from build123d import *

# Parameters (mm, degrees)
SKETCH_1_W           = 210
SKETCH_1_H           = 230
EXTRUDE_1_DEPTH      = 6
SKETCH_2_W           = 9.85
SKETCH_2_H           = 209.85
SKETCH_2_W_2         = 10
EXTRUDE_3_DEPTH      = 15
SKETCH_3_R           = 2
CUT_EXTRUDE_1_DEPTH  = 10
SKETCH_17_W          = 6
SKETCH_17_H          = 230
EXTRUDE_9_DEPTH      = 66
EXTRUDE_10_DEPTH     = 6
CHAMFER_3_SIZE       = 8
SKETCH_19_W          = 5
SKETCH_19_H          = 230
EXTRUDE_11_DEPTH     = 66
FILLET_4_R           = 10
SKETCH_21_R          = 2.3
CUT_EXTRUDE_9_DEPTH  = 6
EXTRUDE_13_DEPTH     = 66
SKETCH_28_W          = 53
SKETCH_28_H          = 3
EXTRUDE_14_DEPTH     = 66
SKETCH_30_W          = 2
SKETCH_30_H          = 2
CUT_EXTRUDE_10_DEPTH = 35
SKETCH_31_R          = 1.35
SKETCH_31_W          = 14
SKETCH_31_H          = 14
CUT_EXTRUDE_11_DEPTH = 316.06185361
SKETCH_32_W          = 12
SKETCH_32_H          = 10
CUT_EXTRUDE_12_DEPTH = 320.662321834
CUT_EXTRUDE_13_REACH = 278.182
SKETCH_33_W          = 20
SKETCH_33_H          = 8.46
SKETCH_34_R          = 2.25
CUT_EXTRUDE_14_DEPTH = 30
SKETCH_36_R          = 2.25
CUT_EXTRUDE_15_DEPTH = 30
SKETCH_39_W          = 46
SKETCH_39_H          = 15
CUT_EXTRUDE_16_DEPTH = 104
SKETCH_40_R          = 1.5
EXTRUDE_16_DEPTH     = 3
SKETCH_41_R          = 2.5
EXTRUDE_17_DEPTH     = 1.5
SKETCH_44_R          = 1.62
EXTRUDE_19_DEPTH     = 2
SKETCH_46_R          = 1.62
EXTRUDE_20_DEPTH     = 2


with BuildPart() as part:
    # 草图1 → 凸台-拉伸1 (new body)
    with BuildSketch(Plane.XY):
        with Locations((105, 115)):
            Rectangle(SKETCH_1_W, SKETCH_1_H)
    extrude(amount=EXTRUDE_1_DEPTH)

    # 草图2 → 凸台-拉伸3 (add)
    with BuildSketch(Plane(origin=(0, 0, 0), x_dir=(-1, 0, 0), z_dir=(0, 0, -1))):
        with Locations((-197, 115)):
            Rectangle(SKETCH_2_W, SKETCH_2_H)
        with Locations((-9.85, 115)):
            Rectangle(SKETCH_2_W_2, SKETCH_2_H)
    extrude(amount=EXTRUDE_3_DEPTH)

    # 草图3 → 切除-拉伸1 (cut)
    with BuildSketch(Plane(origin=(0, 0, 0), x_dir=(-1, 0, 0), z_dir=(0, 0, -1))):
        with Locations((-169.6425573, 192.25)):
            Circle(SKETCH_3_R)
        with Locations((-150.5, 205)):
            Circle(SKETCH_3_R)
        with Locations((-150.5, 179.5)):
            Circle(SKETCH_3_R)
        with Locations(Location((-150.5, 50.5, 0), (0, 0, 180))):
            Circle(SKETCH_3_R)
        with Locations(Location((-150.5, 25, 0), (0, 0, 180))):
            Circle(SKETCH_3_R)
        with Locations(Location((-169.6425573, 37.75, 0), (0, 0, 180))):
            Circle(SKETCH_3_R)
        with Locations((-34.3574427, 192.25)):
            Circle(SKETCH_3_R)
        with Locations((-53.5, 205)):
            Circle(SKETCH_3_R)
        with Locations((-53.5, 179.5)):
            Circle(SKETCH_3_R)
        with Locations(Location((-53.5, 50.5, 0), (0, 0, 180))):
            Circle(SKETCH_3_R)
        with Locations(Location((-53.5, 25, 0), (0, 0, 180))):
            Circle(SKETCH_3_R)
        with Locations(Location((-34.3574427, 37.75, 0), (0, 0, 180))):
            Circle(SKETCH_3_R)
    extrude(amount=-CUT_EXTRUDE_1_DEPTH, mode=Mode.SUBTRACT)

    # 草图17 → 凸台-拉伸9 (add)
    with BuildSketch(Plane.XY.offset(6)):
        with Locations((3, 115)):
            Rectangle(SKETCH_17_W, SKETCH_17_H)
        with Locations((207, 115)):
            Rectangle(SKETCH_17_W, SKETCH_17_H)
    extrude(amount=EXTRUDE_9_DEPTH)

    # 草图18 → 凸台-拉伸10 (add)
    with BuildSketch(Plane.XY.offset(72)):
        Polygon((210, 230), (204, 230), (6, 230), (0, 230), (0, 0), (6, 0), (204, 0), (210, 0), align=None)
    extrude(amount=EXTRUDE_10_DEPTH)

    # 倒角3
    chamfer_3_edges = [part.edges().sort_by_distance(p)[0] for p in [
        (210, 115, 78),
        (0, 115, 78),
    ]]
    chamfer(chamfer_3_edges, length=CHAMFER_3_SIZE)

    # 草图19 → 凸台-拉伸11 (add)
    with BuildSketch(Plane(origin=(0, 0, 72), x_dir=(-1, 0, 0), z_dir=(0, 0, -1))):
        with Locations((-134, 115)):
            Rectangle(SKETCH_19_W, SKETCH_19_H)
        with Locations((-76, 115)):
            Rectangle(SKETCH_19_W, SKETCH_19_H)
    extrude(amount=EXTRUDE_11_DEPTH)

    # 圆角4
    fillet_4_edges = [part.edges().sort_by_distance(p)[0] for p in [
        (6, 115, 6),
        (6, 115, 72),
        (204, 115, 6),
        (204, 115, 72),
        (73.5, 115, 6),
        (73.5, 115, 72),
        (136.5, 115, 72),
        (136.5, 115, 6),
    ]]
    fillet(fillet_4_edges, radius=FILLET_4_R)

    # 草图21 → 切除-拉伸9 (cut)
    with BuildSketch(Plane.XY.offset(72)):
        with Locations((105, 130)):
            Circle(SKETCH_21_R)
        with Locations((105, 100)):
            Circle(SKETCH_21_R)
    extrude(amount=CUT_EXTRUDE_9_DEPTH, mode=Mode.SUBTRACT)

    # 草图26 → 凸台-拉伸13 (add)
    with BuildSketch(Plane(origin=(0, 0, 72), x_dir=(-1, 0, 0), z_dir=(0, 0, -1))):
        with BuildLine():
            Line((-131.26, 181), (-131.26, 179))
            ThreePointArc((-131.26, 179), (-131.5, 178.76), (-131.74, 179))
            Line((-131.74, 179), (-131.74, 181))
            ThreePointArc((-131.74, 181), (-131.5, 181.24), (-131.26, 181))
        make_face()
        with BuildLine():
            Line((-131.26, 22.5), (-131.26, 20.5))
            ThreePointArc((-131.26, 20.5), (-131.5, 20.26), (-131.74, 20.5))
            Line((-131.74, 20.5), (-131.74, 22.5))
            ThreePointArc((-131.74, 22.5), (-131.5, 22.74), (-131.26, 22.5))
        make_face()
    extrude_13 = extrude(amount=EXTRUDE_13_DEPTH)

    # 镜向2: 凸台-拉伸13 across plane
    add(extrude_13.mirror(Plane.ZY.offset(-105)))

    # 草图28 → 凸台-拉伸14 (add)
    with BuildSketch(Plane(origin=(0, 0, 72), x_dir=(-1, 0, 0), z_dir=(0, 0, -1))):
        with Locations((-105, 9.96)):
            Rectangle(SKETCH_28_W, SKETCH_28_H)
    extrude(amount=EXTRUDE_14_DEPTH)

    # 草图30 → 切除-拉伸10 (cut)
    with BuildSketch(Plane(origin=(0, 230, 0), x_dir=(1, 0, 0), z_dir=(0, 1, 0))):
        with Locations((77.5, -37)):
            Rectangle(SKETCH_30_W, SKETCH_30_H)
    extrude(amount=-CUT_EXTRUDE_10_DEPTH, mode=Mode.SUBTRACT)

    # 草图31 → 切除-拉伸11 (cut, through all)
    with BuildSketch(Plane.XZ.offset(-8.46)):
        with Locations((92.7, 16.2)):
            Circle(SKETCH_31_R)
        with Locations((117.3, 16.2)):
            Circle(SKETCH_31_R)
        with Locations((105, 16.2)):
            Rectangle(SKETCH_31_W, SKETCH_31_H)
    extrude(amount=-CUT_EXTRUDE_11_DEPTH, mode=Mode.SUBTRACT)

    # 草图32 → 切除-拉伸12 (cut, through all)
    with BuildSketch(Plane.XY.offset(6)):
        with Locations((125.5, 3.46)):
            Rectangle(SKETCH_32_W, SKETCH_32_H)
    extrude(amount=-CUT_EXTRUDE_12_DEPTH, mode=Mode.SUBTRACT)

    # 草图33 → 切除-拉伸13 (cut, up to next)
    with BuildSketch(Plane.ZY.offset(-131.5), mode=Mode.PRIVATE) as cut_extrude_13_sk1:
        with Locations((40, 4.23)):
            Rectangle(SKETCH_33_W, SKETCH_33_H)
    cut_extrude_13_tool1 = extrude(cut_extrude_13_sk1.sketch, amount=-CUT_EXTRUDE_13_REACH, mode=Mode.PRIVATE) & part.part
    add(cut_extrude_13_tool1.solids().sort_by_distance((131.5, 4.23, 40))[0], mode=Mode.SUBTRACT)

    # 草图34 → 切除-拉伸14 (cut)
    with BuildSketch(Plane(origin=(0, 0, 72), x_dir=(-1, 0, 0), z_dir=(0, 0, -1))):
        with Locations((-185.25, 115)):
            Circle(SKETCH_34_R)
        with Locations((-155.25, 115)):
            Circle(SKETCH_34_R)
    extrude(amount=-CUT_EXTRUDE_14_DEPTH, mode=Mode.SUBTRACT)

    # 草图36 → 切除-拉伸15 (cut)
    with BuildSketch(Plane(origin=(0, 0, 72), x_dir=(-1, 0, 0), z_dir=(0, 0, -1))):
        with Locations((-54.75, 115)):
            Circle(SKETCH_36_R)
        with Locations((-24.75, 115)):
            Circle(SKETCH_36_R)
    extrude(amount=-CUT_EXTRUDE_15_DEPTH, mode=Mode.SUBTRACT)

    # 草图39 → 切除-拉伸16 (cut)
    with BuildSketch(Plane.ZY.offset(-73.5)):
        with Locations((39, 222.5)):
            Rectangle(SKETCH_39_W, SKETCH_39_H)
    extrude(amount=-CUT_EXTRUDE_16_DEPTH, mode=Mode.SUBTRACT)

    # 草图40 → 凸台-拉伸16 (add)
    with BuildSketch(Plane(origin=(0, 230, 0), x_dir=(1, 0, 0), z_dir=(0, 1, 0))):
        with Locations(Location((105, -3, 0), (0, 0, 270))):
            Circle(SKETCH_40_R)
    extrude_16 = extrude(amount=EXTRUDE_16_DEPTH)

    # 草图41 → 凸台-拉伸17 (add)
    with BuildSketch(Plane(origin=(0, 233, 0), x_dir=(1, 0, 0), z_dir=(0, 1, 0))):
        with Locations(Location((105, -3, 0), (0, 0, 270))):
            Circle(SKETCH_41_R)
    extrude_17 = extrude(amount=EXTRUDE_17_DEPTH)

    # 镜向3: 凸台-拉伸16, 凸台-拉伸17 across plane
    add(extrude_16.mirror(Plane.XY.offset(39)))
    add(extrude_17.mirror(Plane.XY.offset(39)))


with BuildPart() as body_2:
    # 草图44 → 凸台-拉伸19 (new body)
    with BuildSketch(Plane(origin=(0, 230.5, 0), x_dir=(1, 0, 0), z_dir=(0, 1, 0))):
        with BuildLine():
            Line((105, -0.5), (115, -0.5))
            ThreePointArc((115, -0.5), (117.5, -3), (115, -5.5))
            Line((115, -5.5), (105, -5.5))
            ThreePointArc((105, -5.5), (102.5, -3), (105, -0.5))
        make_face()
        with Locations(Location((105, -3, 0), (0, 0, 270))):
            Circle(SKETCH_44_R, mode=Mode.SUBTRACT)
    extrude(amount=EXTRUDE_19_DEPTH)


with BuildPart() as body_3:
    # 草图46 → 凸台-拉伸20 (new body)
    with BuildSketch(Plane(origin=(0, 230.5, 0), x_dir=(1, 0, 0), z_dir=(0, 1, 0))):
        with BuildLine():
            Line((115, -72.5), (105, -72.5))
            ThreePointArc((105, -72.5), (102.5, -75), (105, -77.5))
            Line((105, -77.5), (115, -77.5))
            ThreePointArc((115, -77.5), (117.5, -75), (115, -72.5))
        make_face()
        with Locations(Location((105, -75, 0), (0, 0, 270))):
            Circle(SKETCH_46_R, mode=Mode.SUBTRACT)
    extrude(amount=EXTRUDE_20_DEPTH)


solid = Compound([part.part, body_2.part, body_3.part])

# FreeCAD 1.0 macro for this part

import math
import FreeCAD as App
import Part
import Sketcher
from FreeCAD import Vector


def edges_at(feature, points):
    """Names of the edges that pass closest to the given points."""
    edges = feature.Shape.Edges
    near = lambda p: min(range(len(edges)), key=lambda i: edges[i].distToShape(Part.Vertex(*p))[0])
    return sorted({f"Edge{near(p) + 1}" for p in points})

doc = App.newDocument("Part")
body = doc.addObject("PartDesign::Body", "Body")

# Sketch on XY plane
sketch1 = body.newObject("Sketcher::SketchObject", "Sketch")
sketch1.AttachmentSupport = (doc.getObject("XY_Plane"), [""])
sketch1.MapMode = "FlatFace"
sketch1.addGeometry([
    Part.LineSegment(Vector(0, 230, 0), Vector(0, 0, 0)),
    Part.LineSegment(Vector(0, 0, 0), Vector(210, 0, 0)),
    Part.LineSegment(Vector(210, 0, 0), Vector(210, 230, 0)),
    Part.LineSegment(Vector(210, 230, 0), Vector(0, 230, 0)),
], False)
sketch1.addConstraint([
    Sketcher.Constraint("Coincident", 0, 2, 1, 1),
    Sketcher.Constraint("Coincident", 1, 2, 2, 1),
    Sketcher.Constraint("Coincident", 2, 2, 3, 1),
    Sketcher.Constraint("Coincident", 3, 2, 0, 1),
    Sketcher.Constraint("Vertical", 0),
    Sketcher.Constraint("Horizontal", 1),
    Sketcher.Constraint("Vertical", 2),
    Sketcher.Constraint("Horizontal", 3),
    Sketcher.Constraint("Coincident", 0, 2, -1, 1),
    Sketcher.Constraint("DistanceX", 1, 1, 1, 2, 210.0),
    Sketcher.Constraint("DistanceY", 0, 2, 0, 1, 230.0),
])
pad1 = body.newObject("PartDesign::Pad", "Pad")
pad1.Profile = sketch1
pad1.Length = 6

# Sketch on XY plane
sketch2 = body.newObject("Sketcher::SketchObject", "Sketch001")
sketch2.AttachmentSupport = (doc.getObject("XY_Plane"), [""])
sketch2.MapMode = "FlatFace"
sketch2.addGeometry([
    Part.LineSegment(Vector(201.925, 219.925, 0), Vector(201.925, 10.075, 0)),  # 0
    Part.LineSegment(Vector(201.925, 10.075, 0), Vector(192.075, 10.075, 0)),  # 1
    Part.LineSegment(Vector(192.075, 10.075, 0), Vector(192.075, 219.925, 0)),  # 2
    Part.LineSegment(Vector(192.075, 219.925, 0), Vector(201.925, 219.925, 0)),  # 3
    Part.LineSegment(Vector(14.85, 219.925, 0), Vector(14.85, 10.075, 0)),  # 4
    Part.LineSegment(Vector(14.85, 10.075, 0), Vector(4.85, 10.075, 0)),  # 5
    Part.LineSegment(Vector(4.85, 10.075, 0), Vector(4.85, 219.925, 0)),  # 6
    Part.LineSegment(Vector(4.85, 219.925, 0), Vector(14.85, 219.925, 0)),  # 7
], False)
sketch2.addConstraint([
    Sketcher.Constraint("Coincident", 0, 2, 1, 1),
    Sketcher.Constraint("Coincident", 1, 2, 2, 1),
    Sketcher.Constraint("Coincident", 2, 2, 3, 1),
    Sketcher.Constraint("Coincident", 3, 2, 0, 1),
    Sketcher.Constraint("Coincident", 4, 2, 5, 1),
    Sketcher.Constraint("Coincident", 5, 2, 6, 1),
    Sketcher.Constraint("Coincident", 6, 2, 7, 1),
    Sketcher.Constraint("Coincident", 7, 2, 4, 1),
    Sketcher.Constraint("Vertical", 0),
    Sketcher.Constraint("Horizontal", 1),
    Sketcher.Constraint("Vertical", 2),
    Sketcher.Constraint("Horizontal", 3),
    Sketcher.Constraint("Vertical", 4),
    Sketcher.Constraint("Horizontal", 5),
    Sketcher.Constraint("Vertical", 6),
    Sketcher.Constraint("Horizontal", 7),
    Sketcher.Constraint("Horizontal", 1, 2, 4, 2),
    Sketcher.Constraint("Horizontal", 3, 2, 6, 2),
    Sketcher.Constraint("DistanceX", 5, 2, 5, 1, 10.0),
    Sketcher.Constraint("DistanceX", 1, 2, 1, 1, 9.85),
    Sketcher.Constraint("DistanceY", 0, 2, 0, 1, 209.85),
    Sketcher.Constraint("DistanceX", -1, 1, 4, 2, 14.85),
    Sketcher.Constraint("DistanceX", -1, 1, 0, 2, 201.925),
    Sketcher.Constraint("DistanceY", -1, 1, 0, 2, 10.075),
])
pad2 = body.newObject("PartDesign::Pad", "Pad001")
pad2.Profile = sketch2
pad2.Length = 15
pad2.Reversed = True

# Sketch on XY plane
sketch3 = body.newObject("Sketcher::SketchObject", "Sketch002")
sketch3.AttachmentSupport = (doc.getObject("XY_Plane"), [""])
sketch3.MapMode = "FlatFace"
sketch3.addGeometry([
    Part.Circle(Vector(169.642557, 192.25, 0), Vector(0, 0, 1), 2),  # 0
    Part.Circle(Vector(150.5, 205, 0), Vector(0, 0, 1), 2),  # 1
    Part.Circle(Vector(150.5, 179.5, 0), Vector(0, 0, 1), 2),  # 2
    Part.Circle(Vector(150.5, 50.5, 0), Vector(0, 0, 1), 2),  # 3
    Part.Circle(Vector(150.5, 25, 0), Vector(0, 0, 1), 2),  # 4
    Part.Circle(Vector(169.642557, 37.75, 0), Vector(0, 0, 1), 2),  # 5
    Part.Circle(Vector(34.357443, 192.25, 0), Vector(0, 0, 1), 2),  # 6
    Part.Circle(Vector(53.5, 205, 0), Vector(0, 0, 1), 2),  # 7
    Part.Circle(Vector(53.5, 179.5, 0), Vector(0, 0, 1), 2),  # 8
    Part.Circle(Vector(53.5, 50.5, 0), Vector(0, 0, 1), 2),  # 9
    Part.Circle(Vector(53.5, 25, 0), Vector(0, 0, 1), 2),  # 10
    Part.Circle(Vector(34.357443, 37.75, 0), Vector(0, 0, 1), 2),  # 11
], False)
sketch3.addConstraint([
    Sketcher.Constraint("Equal", 0, 1),
    Sketcher.Constraint("Equal", 1, 2),
    Sketcher.Constraint("Equal", 2, 3),
    Sketcher.Constraint("Equal", 3, 4),
    Sketcher.Constraint("Equal", 4, 5),
    Sketcher.Constraint("Equal", 5, 6),
    Sketcher.Constraint("Equal", 6, 7),
    Sketcher.Constraint("Equal", 7, 8),
    Sketcher.Constraint("Equal", 8, 9),
    Sketcher.Constraint("Equal", 9, 10),
    Sketcher.Constraint("Equal", 10, 11),
    Sketcher.Constraint("Horizontal", 0, 3, 6, 3),
    Sketcher.Constraint("Horizontal", 1, 3, 7, 3),
    Sketcher.Constraint("Horizontal", 2, 3, 8, 3),
    Sketcher.Constraint("Horizontal", 3, 3, 9, 3),
    Sketcher.Constraint("Horizontal", 4, 3, 10, 3),
    Sketcher.Constraint("Horizontal", 5, 3, 11, 3),
    Sketcher.Constraint("Vertical", 1, 3, 2, 3),
    Sketcher.Constraint("Vertical", 2, 3, 3, 3),
    Sketcher.Constraint("Vertical", 3, 3, 4, 3),
    Sketcher.Constraint("Vertical", 0, 3, 5, 3),
    Sketcher.Constraint("Vertical", 7, 3, 8, 3),
    Sketcher.Constraint("Vertical", 8, 3, 9, 3),
    Sketcher.Constraint("Vertical", 9, 3, 10, 3),
    Sketcher.Constraint("Vertical", 6, 3, 11, 3),
    Sketcher.Constraint("Diameter", 0, 4.0),
    Sketcher.Constraint("DistanceY", -1, 1, 1, 3, 205.0),
    Sketcher.Constraint("DistanceY", -1, 1, 4, 3, 25.0),
    Sketcher.Constraint("DistanceY", 3, 3, 2, 3, 129.0),
    Sketcher.Constraint("DistanceX", 7, 3, 1, 3, 97.0),
    Sketcher.Constraint("DistanceX", -1, 1, 1, 3, 150.5),
    Sketcher.Constraint("DistanceY", -1, 1, 2, 3, 179.5),
    Sketcher.Constraint("DistanceY", 5, 3, 0, 3, 154.5),
    Sketcher.Constraint("DistanceY", -1, 1, 0, 3, 192.25),
    Sketcher.Constraint("DistanceX", -1, 1, 0, 3, 169.642557),
    Sketcher.Constraint("DistanceX", -1, 1, 6, 3, 34.357443),
])
pocket1 = body.newObject("PartDesign::Pocket", "Pocket")
pocket1.Profile = sketch3
pocket1.Length = 10
pocket1.Reversed = True

# Sketch on XY plane
sketch4 = body.newObject("Sketcher::SketchObject", "Sketch003")
sketch4.AttachmentSupport = (doc.getObject("XY_Plane"), [""])
sketch4.MapMode = "FlatFace"
sketch4.AttachmentOffset = App.Placement(Vector(0, 0, 6), App.Rotation())
sketch4.addGeometry([
    Part.LineSegment(Vector(0, 230, 0), Vector(0, 0, 0)),  # 0
    Part.LineSegment(Vector(0, 0, 0), Vector(6, 0, 0)),  # 1
    Part.LineSegment(Vector(6, 0, 0), Vector(6, 230, 0)),  # 2
    Part.LineSegment(Vector(6, 230, 0), Vector(0, 230, 0)),  # 3
    Part.LineSegment(Vector(204, 230, 0), Vector(204, 0, 0)),  # 4
    Part.LineSegment(Vector(204, 0, 0), Vector(210, 0, 0)),  # 5
    Part.LineSegment(Vector(210, 0, 0), Vector(210, 230, 0)),  # 6
    Part.LineSegment(Vector(210, 230, 0), Vector(204, 230, 0)),  # 7
], False)
sketch4.addConstraint([
    Sketcher.Constraint("Coincident", 0, 2, 1, 1),
    Sketcher.Constraint("Coincident", 1, 2, 2, 1),
    Sketcher.Constraint("Coincident", 2, 2, 3, 1),
    Sketcher.Constraint("Coincident", 3, 2, 0, 1),
    Sketcher.Constraint("Coincident", 4, 2, 5, 1),
    Sketcher.Constraint("Coincident", 5, 2, 6, 1),
    Sketcher.Constraint("Coincident", 6, 2, 7, 1),
    Sketcher.Constraint("Coincident", 7, 2, 4, 1),
    Sketcher.Constraint("Vertical", 0),
    Sketcher.Constraint("Horizontal", 1),
    Sketcher.Constraint("Vertical", 2),
    Sketcher.Constraint("Horizontal", 3),
    Sketcher.Constraint("Vertical", 4),
    Sketcher.Constraint("Horizontal", 5),
    Sketcher.Constraint("Vertical", 6),
    Sketcher.Constraint("Horizontal", 7),
    Sketcher.Constraint("Coincident", 0, 2, -1, 1),
    Sketcher.Constraint("PointOnObject", 4, 2, -1),
    Sketcher.Constraint("Horizontal", 3, 2, 6, 2),
    Sketcher.Constraint("Equal", 3, 5),
    Sketcher.Constraint("DistanceX", 1, 1, 1, 2, 6.0),
    Sketcher.Constraint("DistanceY", 0, 2, 0, 1, 230.0),
    Sketcher.Constraint("DistanceX", -1, 1, 4, 2, 204.0),
])
pad3 = body.newObject("PartDesign::Pad", "Pad002")
pad3.Profile = sketch4
pad3.Length = 66

# Sketch on XY plane
sketch5 = body.newObject("Sketcher::SketchObject", "Sketch004")
sketch5.AttachmentSupport = (doc.getObject("XY_Plane"), [""])
sketch5.MapMode = "FlatFace"
sketch5.AttachmentOffset = App.Placement(Vector(0, 0, 72), App.Rotation())
sketch5.addGeometry([
    Part.LineSegment(Vector(210, 230, 0), Vector(0, 230, 0)),
    Part.LineSegment(Vector(0, 230, 0), Vector(0, 0, 0)),
    Part.LineSegment(Vector(0, 0, 0), Vector(210, 0, 0)),
    Part.LineSegment(Vector(210, 0, 0), Vector(210, 230, 0)),
], False)
sketch5.addConstraint([
    Sketcher.Constraint("Coincident", 0, 2, 1, 1),
    Sketcher.Constraint("Coincident", 1, 2, 2, 1),
    Sketcher.Constraint("Coincident", 2, 2, 3, 1),
    Sketcher.Constraint("Coincident", 3, 2, 0, 1),
    Sketcher.Constraint("Horizontal", 0),
    Sketcher.Constraint("Vertical", 1),
    Sketcher.Constraint("Horizontal", 2),
    Sketcher.Constraint("Vertical", 3),
    Sketcher.Constraint("Coincident", 1, 2, -1, 1),
    Sketcher.Constraint("DistanceX", 0, 2, 0, 1, 210.0),
    Sketcher.Constraint("DistanceY", 1, 2, 1, 1, 230.0),
])
pad4 = body.newObject("PartDesign::Pad", "Pad003")
pad4.Profile = sketch5
pad4.Length = 6
doc.recompute()

chamfer = body.newObject("PartDesign::Chamfer", "Chamfer")
chamfer.Base = (pad4, edges_at(pad4, [(210, 115, 78), (0, 115, 78)]))
chamfer.Size = 8

# Sketch on XY plane
sketch6 = body.newObject("Sketcher::SketchObject", "Sketch005")
sketch6.AttachmentSupport = (doc.getObject("XY_Plane"), [""])
sketch6.MapMode = "FlatFace"
sketch6.AttachmentOffset = App.Placement(Vector(0, 0, 72), App.Rotation())
sketch6.addGeometry([
    Part.LineSegment(Vector(136.5, 230, 0), Vector(136.5, 0, 0)),  # 0
    Part.LineSegment(Vector(136.5, 0, 0), Vector(131.5, 0, 0)),  # 1
    Part.LineSegment(Vector(131.5, 0, 0), Vector(131.5, 230, 0)),  # 2
    Part.LineSegment(Vector(131.5, 230, 0), Vector(136.5, 230, 0)),  # 3
    Part.LineSegment(Vector(78.5, 230, 0), Vector(78.5, 0, 0)),  # 4
    Part.LineSegment(Vector(78.5, 0, 0), Vector(73.5, 0, 0)),  # 5
    Part.LineSegment(Vector(73.5, 0, 0), Vector(73.5, 230, 0)),  # 6
    Part.LineSegment(Vector(73.5, 230, 0), Vector(78.5, 230, 0)),  # 7
], False)
sketch6.addConstraint([
    Sketcher.Constraint("Coincident", 0, 2, 1, 1),
    Sketcher.Constraint("Coincident", 1, 2, 2, 1),
    Sketcher.Constraint("Coincident", 2, 2, 3, 1),
    Sketcher.Constraint("Coincident", 3, 2, 0, 1),
    Sketcher.Constraint("Coincident", 4, 2, 5, 1),
    Sketcher.Constraint("Coincident", 5, 2, 6, 1),
    Sketcher.Constraint("Coincident", 6, 2, 7, 1),
    Sketcher.Constraint("Coincident", 7, 2, 4, 1),
    Sketcher.Constraint("Vertical", 0),
    Sketcher.Constraint("Horizontal", 1),
    Sketcher.Constraint("Vertical", 2),
    Sketcher.Constraint("Horizontal", 3),
    Sketcher.Constraint("Vertical", 4),
    Sketcher.Constraint("Horizontal", 5),
    Sketcher.Constraint("Vertical", 6),
    Sketcher.Constraint("Horizontal", 7),
    Sketcher.Constraint("PointOnObject", 0, 2, -1),
    Sketcher.Constraint("PointOnObject", 4, 2, -1),
    Sketcher.Constraint("Horizontal", 3, 2, 6, 2),
    Sketcher.Constraint("Equal", 3, 5),
    Sketcher.Constraint("DistanceX", 1, 2, 1, 1, 5.0),
    Sketcher.Constraint("DistanceY", 0, 2, 0, 1, 230.0),
    Sketcher.Constraint("DistanceX", 4, 2, 1, 2, 53.0),
    Sketcher.Constraint("DistanceX", -1, 1, 0, 2, 136.5),
])
pad5 = body.newObject("PartDesign::Pad", "Pad004")
pad5.Profile = sketch6
pad5.Length = 66
pad5.Reversed = True
doc.recompute()

fillet = body.newObject("PartDesign::Fillet", "Fillet")
fillet.Base = (pad5, edges_at(pad5, [
    (6, 115, 6),
    (6, 115, 72),
    (204, 115, 6),
    (204, 115, 72),
    (73.5, 115, 6),
    (73.5, 115, 72),
    (136.5, 115, 72),
    (136.5, 115, 6),
]))
fillet.Radius = 10

# Sketch on XY plane
sketch7 = body.newObject("Sketcher::SketchObject", "Sketch006")
sketch7.AttachmentSupport = (doc.getObject("XY_Plane"), [""])
sketch7.MapMode = "FlatFace"
sketch7.AttachmentOffset = App.Placement(Vector(0, 0, 72), App.Rotation())
sketch7.addGeometry([
    Part.Circle(Vector(105, 130, 0), Vector(0, 0, 1), 2.3),
    Part.Circle(Vector(105, 100, 0), Vector(0, 0, 1), 2.3),
], False)
sketch7.addConstraint([
    Sketcher.Constraint("Equal", 0, 1),
    Sketcher.Constraint("Vertical", 0, 3, 1, 3),
    Sketcher.Constraint("Diameter", 0, 4.6),
    Sketcher.Constraint("DistanceX", -1, 1, 0, 3, 105.0),
    Sketcher.Constraint("DistanceY", -1, 1, 0, 3, 130.0),
    Sketcher.Constraint("DistanceY", -1, 1, 1, 3, 100.0),
])
pocket2 = body.newObject("PartDesign::Pocket", "Pocket001")
pocket2.Profile = sketch7
pocket2.Length = 6
pocket2.Reversed = True

# Sketch on XY plane
sketch8 = body.newObject("Sketcher::SketchObject", "Sketch007")
sketch8.AttachmentSupport = (doc.getObject("XY_Plane"), [""])
sketch8.MapMode = "FlatFace"
sketch8.AttachmentOffset = App.Placement(Vector(0, 0, 72), App.Rotation())
sketch8.addGeometry([
    Part.LineSegment(Vector(131.26, 179, 0), Vector(131.26, 181, 0)),  # 0
    Part.ArcOfCircle(Part.Circle(Vector(131.5, 181, 0), Vector(0, 0, 1), 0.24), math.radians(0), math.radians(180)),  # 1
    Part.LineSegment(Vector(131.74, 181, 0), Vector(131.74, 179, 0)),  # 2
    Part.ArcOfCircle(Part.Circle(Vector(131.5, 179, 0), Vector(0, 0, 1), 0.24), math.radians(180), math.radians(360)),  # 3
    Part.LineSegment(Vector(131.26, 20.5, 0), Vector(131.26, 22.5, 0)),  # 4
    Part.ArcOfCircle(Part.Circle(Vector(131.5, 22.5, 0), Vector(0, 0, 1), 0.24), math.radians(0), math.radians(180)),  # 5
    Part.LineSegment(Vector(131.74, 22.5, 0), Vector(131.74, 20.5, 0)),  # 6
    Part.ArcOfCircle(Part.Circle(Vector(131.5, 20.5, 0), Vector(0, 0, 1), 0.24), math.radians(180), math.radians(360)),  # 7
], False)
sketch8.addConstraint([
    Sketcher.Constraint("Tangent", 0, 2, 1, 2),
    Sketcher.Constraint("Tangent", 1, 1, 2, 1),
    Sketcher.Constraint("Tangent", 2, 2, 3, 2),
    Sketcher.Constraint("Tangent", 3, 1, 0, 1),
    Sketcher.Constraint("Tangent", 4, 2, 5, 2),
    Sketcher.Constraint("Tangent", 5, 1, 6, 1),
    Sketcher.Constraint("Tangent", 6, 2, 7, 2),
    Sketcher.Constraint("Tangent", 7, 1, 4, 1),
    Sketcher.Constraint("Vertical", 0),
    Sketcher.Constraint("Vertical", 2),
    Sketcher.Constraint("Vertical", 4),
    Sketcher.Constraint("Vertical", 6),
    Sketcher.Constraint("Equal", 3, 5),
    Sketcher.Constraint("Vertical", 3, 3, 5, 3),
    Sketcher.Constraint("Equal", 2, 4),
    Sketcher.Constraint("DistanceY", 0, 1, 0, 2, 2.0),
    Sketcher.Constraint("Radius", 1, 0.24),
    Sketcher.Constraint("DistanceY", -1, 1, 1, 3, 181.0),
    Sketcher.Constraint("DistanceX", -1, 1, 1, 3, 131.5),
    Sketcher.Constraint("DistanceY", -1, 1, 5, 3, 22.5),
])
pad6 = body.newObject("PartDesign::Pad", "Pad005")
pad6.Profile = sketch8
pad6.Length = 66
pad6.Reversed = True
doc.recompute()

datumplane = body.newObject("PartDesign::Plane", "DatumPlane")
datumplane.AttachmentSupport = (doc.getObject("YZ_Plane"), [""])
datumplane.MapMode = "FlatFace"
datumplane.AttachmentOffset = App.Placement(Vector(0, 0, 105), App.Rotation())
mirrored = body.newObject("PartDesign::Mirrored", "Mirrored")
mirrored.Originals = [pad6]
mirrored.MirrorPlane = (datumplane, [""])
body.Tip = mirrored

# Sketch on XY plane
sketch9 = body.newObject("Sketcher::SketchObject", "Sketch008")
sketch9.AttachmentSupport = (doc.getObject("XY_Plane"), [""])
sketch9.MapMode = "FlatFace"
sketch9.AttachmentOffset = App.Placement(Vector(0, 0, 72), App.Rotation())
sketch9.addGeometry([
    Part.LineSegment(Vector(131.5, 11.46, 0), Vector(131.5, 8.46, 0)),
    Part.LineSegment(Vector(131.5, 8.46, 0), Vector(78.5, 8.46, 0)),
    Part.LineSegment(Vector(78.5, 8.46, 0), Vector(78.5, 11.46, 0)),
    Part.LineSegment(Vector(78.5, 11.46, 0), Vector(131.5, 11.46, 0)),
], False)
sketch9.addConstraint([
    Sketcher.Constraint("Coincident", 0, 2, 1, 1),
    Sketcher.Constraint("Coincident", 1, 2, 2, 1),
    Sketcher.Constraint("Coincident", 2, 2, 3, 1),
    Sketcher.Constraint("Coincident", 3, 2, 0, 1),
    Sketcher.Constraint("Vertical", 0),
    Sketcher.Constraint("Horizontal", 1),
    Sketcher.Constraint("Vertical", 2),
    Sketcher.Constraint("Horizontal", 3),
    Sketcher.Constraint("DistanceX", 1, 2, 1, 1, 53.0),
    Sketcher.Constraint("DistanceY", 0, 2, 0, 1, 3.0),
    Sketcher.Constraint("DistanceX", -1, 1, 0, 2, 131.5),
    Sketcher.Constraint("DistanceY", -1, 1, 0, 2, 8.46),
])
pad7 = body.newObject("PartDesign::Pad", "Pad006")
pad7.Profile = sketch9
pad7.Length = 66
pad7.Reversed = True

# Sketch on XZ plane
sketch10 = body.newObject("Sketcher::SketchObject", "Sketch009")
sketch10.AttachmentSupport = (doc.getObject("XZ_Plane"), [""])
sketch10.MapMode = "FlatFace"
sketch10.AttachmentOffset = App.Placement(Vector(0, 0, -230), App.Rotation())
sketch10.addGeometry([
    Part.LineSegment(Vector(76.5, 36, 0), Vector(76.5, 38, 0)),
    Part.LineSegment(Vector(76.5, 38, 0), Vector(78.5, 38, 0)),
    Part.LineSegment(Vector(78.5, 38, 0), Vector(78.5, 36, 0)),
    Part.LineSegment(Vector(78.5, 36, 0), Vector(76.5, 36, 0)),
], False)
sketch10.addConstraint([
    Sketcher.Constraint("Coincident", 0, 2, 1, 1),
    Sketcher.Constraint("Coincident", 1, 2, 2, 1),
    Sketcher.Constraint("Coincident", 2, 2, 3, 1),
    Sketcher.Constraint("Coincident", 3, 2, 0, 1),
    Sketcher.Constraint("Vertical", 0),
    Sketcher.Constraint("Horizontal", 1),
    Sketcher.Constraint("Vertical", 2),
    Sketcher.Constraint("Horizontal", 3),
    Sketcher.Constraint("Equal", 3, 0),
    Sketcher.Constraint("DistanceX", 1, 1, 1, 2, 2.0),
    Sketcher.Constraint("DistanceY", -1, 1, 0, 2, 38.0),
    Sketcher.Constraint("DistanceX", -1, 1, 0, 2, 76.5),
])
pocket3 = body.newObject("PartDesign::Pocket", "Pocket002")
pocket3.Profile = sketch10
pocket3.Length = 35
pocket3.Reversed = True

# Sketch on XZ plane
sketch11 = body.newObject("Sketcher::SketchObject", "Sketch010")
sketch11.AttachmentSupport = (doc.getObject("XZ_Plane"), [""])
sketch11.MapMode = "FlatFace"
sketch11.AttachmentOffset = App.Placement(Vector(0, 0, -8.46), App.Rotation())
sketch11.addGeometry([
    Part.Circle(Vector(92.7, 16.2, 0), Vector(0, 0, 1), 1.35),  # 0
    Part.Circle(Vector(117.3, 16.2, 0), Vector(0, 0, 1), 1.35),  # 1
    Part.LineSegment(Vector(98, 23.2, 0), Vector(98, 9.2, 0)),  # 2
    Part.LineSegment(Vector(98, 9.2, 0), Vector(112, 9.2, 0)),  # 3
    Part.LineSegment(Vector(112, 9.2, 0), Vector(112, 23.2, 0)),  # 4
    Part.LineSegment(Vector(112, 23.2, 0), Vector(98, 23.2, 0)),  # 5
], False)
sketch11.addConstraint([
    Sketcher.Constraint("Coincident", 2, 2, 3, 1),
    Sketcher.Constraint("Coincident", 3, 2, 4, 1),
    Sketcher.Constraint("Coincident", 4, 2, 5, 1),
    Sketcher.Constraint("Coincident", 5, 2, 2, 1),
    Sketcher.Constraint("Vertical", 2),
    Sketcher.Constraint("Horizontal", 3),
    Sketcher.Constraint("Vertical", 4),
    Sketcher.Constraint("Horizontal", 5),
    Sketcher.Constraint("Equal", 0, 1),
    Sketcher.Constraint("Horizontal", 0, 3, 1, 3),
    Sketcher.Constraint("Equal", 5, 2),
    Sketcher.Constraint("Diameter", 0, 2.7),
    Sketcher.Constraint("DistanceX", 3, 1, 3, 2, 14.0),
    Sketcher.Constraint("DistanceX", -1, 1, 2, 2, 98.0),
    Sketcher.Constraint("DistanceY", 2, 2, 0, 3, 7.0),
    Sketcher.Constraint("DistanceX", -1, 1, 0, 3, 92.7),
    Sketcher.Constraint("DistanceY", -1, 1, 0, 3, 16.2),
    Sketcher.Constraint("DistanceX", -1, 1, 1, 3, 117.3),
])
pocket4 = body.newObject("PartDesign::Pocket", "Pocket003")
pocket4.Profile = sketch11
pocket4.Type = "ThroughAll"

# Sketch on XY plane
sketch12 = body.newObject("Sketcher::SketchObject", "Sketch011")
sketch12.AttachmentSupport = (doc.getObject("XY_Plane"), [""])
sketch12.MapMode = "FlatFace"
sketch12.AttachmentOffset = App.Placement(Vector(0, 0, 6), App.Rotation())
sketch12.addGeometry([
    Part.LineSegment(Vector(119.5, 8.46, 0), Vector(119.5, -1.54, 0)),
    Part.LineSegment(Vector(119.5, -1.54, 0), Vector(131.5, -1.54, 0)),
    Part.LineSegment(Vector(131.5, -1.54, 0), Vector(131.5, 8.46, 0)),
    Part.LineSegment(Vector(131.5, 8.46, 0), Vector(119.5, 8.46, 0)),
], False)
sketch12.addConstraint([
    Sketcher.Constraint("Coincident", 0, 2, 1, 1),
    Sketcher.Constraint("Coincident", 1, 2, 2, 1),
    Sketcher.Constraint("Coincident", 2, 2, 3, 1),
    Sketcher.Constraint("Coincident", 3, 2, 0, 1),
    Sketcher.Constraint("Vertical", 0),
    Sketcher.Constraint("Horizontal", 1),
    Sketcher.Constraint("Vertical", 2),
    Sketcher.Constraint("Horizontal", 3),
    Sketcher.Constraint("DistanceX", 1, 1, 1, 2, 12.0),
    Sketcher.Constraint("DistanceY", 0, 2, 0, 1, 10.0),
    Sketcher.Constraint("DistanceX", -1, 1, 0, 2, 119.5),
    Sketcher.Constraint("DistanceY", 0, 2, -1, 1, 1.54),
])
pocket5 = body.newObject("PartDesign::Pocket", "Pocket004")
pocket5.Profile = sketch12
pocket5.Type = "ThroughAll"

# Sketch on YZ plane
sketch13 = body.newObject("Sketcher::SketchObject", "Sketch012")
sketch13.AttachmentSupport = (doc.getObject("YZ_Plane"), [""])
sketch13.MapMode = "FlatFace"
sketch13.AttachmentOffset = App.Placement(Vector(0, 0, 131.5), App.Rotation())
sketch13.addGeometry([
    Part.LineSegment(Vector(8.46, 30, 0), Vector(0, 30, 0)),
    Part.LineSegment(Vector(0, 30, 0), Vector(0, 50, 0)),
    Part.LineSegment(Vector(0, 50, 0), Vector(8.46, 50, 0)),
    Part.LineSegment(Vector(8.46, 50, 0), Vector(8.46, 30, 0)),
], False)
sketch13.addConstraint([
    Sketcher.Constraint("Coincident", 0, 2, 1, 1),
    Sketcher.Constraint("Coincident", 1, 2, 2, 1),
    Sketcher.Constraint("Coincident", 2, 2, 3, 1),
    Sketcher.Constraint("Coincident", 3, 2, 0, 1),
    Sketcher.Constraint("Horizontal", 0),
    Sketcher.Constraint("Vertical", 1),
    Sketcher.Constraint("Horizontal", 2),
    Sketcher.Constraint("Vertical", 3),
    Sketcher.Constraint("PointOnObject", 0, 2, -2),
    Sketcher.Constraint("DistanceY", 1, 1, 1, 2, 20.0),
    Sketcher.Constraint("DistanceY", -1, 1, 0, 2, 30.0),
    Sketcher.Constraint("DistanceX", 0, 2, 0, 1, 8.46),
])
pocket6 = body.newObject("PartDesign::Pocket", "Pocket005")
pocket6.Profile = sketch13
pocket6.Type = "UpToFirst"
pocket6.Reversed = True

# Sketch on XY plane
sketch14 = body.newObject("Sketcher::SketchObject", "Sketch013")
sketch14.AttachmentSupport = (doc.getObject("XY_Plane"), [""])
sketch14.MapMode = "FlatFace"
sketch14.AttachmentOffset = App.Placement(Vector(0, 0, 72), App.Rotation())
sketch14.addGeometry([
    Part.Circle(Vector(185.25, 115, 0), Vector(0, 0, 1), 2.25),
    Part.Circle(Vector(155.25, 115, 0), Vector(0, 0, 1), 2.25),
], False)
sketch14.addConstraint([
    Sketcher.Constraint("Equal", 0, 1),
    Sketcher.Constraint("Horizontal", 0, 3, 1, 3),
    Sketcher.Constraint("Diameter", 0, 4.5),
    Sketcher.Constraint("DistanceY", -1, 1, 0, 3, 115.0),
    Sketcher.Constraint("DistanceX", 1, 3, 0, 3, 30.0),
    Sketcher.Constraint("DistanceX", -1, 1, 0, 3, 185.25),
])
pocket7 = body.newObject("PartDesign::Pocket", "Pocket006")
pocket7.Profile = sketch14
pocket7.Length = 30
pocket7.Reversed = True

# Sketch on XY plane
sketch15 = body.newObject("Sketcher::SketchObject", "Sketch014")
sketch15.AttachmentSupport = (doc.getObject("XY_Plane"), [""])
sketch15.MapMode = "FlatFace"
sketch15.AttachmentOffset = App.Placement(Vector(0, 0, 72), App.Rotation())
sketch15.addGeometry([
    Part.Circle(Vector(54.75, 115, 0), Vector(0, 0, 1), 2.25),
    Part.Circle(Vector(24.75, 115, 0), Vector(0, 0, 1), 2.25),
], False)
sketch15.addConstraint([
    Sketcher.Constraint("Equal", 0, 1),
    Sketcher.Constraint("Horizontal", 0, 3, 1, 3),
    Sketcher.Constraint("Diameter", 0, 4.5),
    Sketcher.Constraint("DistanceY", -1, 1, 0, 3, 115.0),
    Sketcher.Constraint("DistanceX", 1, 3, 0, 3, 30.0),
    Sketcher.Constraint("DistanceX", -1, 1, 0, 3, 54.75),
])
pocket8 = body.newObject("PartDesign::Pocket", "Pocket007")
pocket8.Profile = sketch15
pocket8.Length = 30
pocket8.Reversed = True

# Sketch on YZ plane
sketch16 = body.newObject("Sketcher::SketchObject", "Sketch015")
sketch16.AttachmentSupport = (doc.getObject("YZ_Plane"), [""])
sketch16.MapMode = "FlatFace"
sketch16.AttachmentOffset = App.Placement(Vector(0, 0, 73.5), App.Rotation())
sketch16.addGeometry([
    Part.LineSegment(Vector(230, 16, 0), Vector(215, 16, 0)),
    Part.LineSegment(Vector(215, 16, 0), Vector(215, 62, 0)),
    Part.LineSegment(Vector(215, 62, 0), Vector(230, 62, 0)),
    Part.LineSegment(Vector(230, 62, 0), Vector(230, 16, 0)),
], False)
sketch16.addConstraint([
    Sketcher.Constraint("Coincident", 0, 2, 1, 1),
    Sketcher.Constraint("Coincident", 1, 2, 2, 1),
    Sketcher.Constraint("Coincident", 2, 2, 3, 1),
    Sketcher.Constraint("Coincident", 3, 2, 0, 1),
    Sketcher.Constraint("Horizontal", 0),
    Sketcher.Constraint("Vertical", 1),
    Sketcher.Constraint("Horizontal", 2),
    Sketcher.Constraint("Vertical", 3),
    Sketcher.Constraint("DistanceX", 0, 2, 0, 1, 15.0),
    Sketcher.Constraint("DistanceY", 1, 1, 1, 2, 46.0),
    Sketcher.Constraint("DistanceX", -1, 1, 0, 2, 215.0),
    Sketcher.Constraint("DistanceY", -1, 1, 0, 2, 16.0),
])
pocket9 = body.newObject("PartDesign::Pocket", "Pocket008")
pocket9.Profile = sketch16
pocket9.Length = 104
pocket9.Reversed = True

# Sketch on XZ plane
sketch17 = body.newObject("Sketcher::SketchObject", "Sketch016")
sketch17.AttachmentSupport = (doc.getObject("XZ_Plane"), [""])
sketch17.MapMode = "FlatFace"
sketch17.AttachmentOffset = App.Placement(Vector(0, 0, -230), App.Rotation())
sketch17.addGeometry(Part.Circle(Vector(105, 3, 0), Vector(0, 0, 1), 1.5), False)
sketch17.addConstraint([
    Sketcher.Constraint("Diameter", 0, 3.0),
    Sketcher.Constraint("DistanceX", -1, 1, 0, 3, 105.0),
    Sketcher.Constraint("DistanceY", -1, 1, 0, 3, 3.0),
])
pad8 = body.newObject("PartDesign::Pad", "Pad007")
pad8.Profile = sketch17
pad8.Length = 3
pad8.Reversed = True

# Sketch on XZ plane
sketch18 = body.newObject("Sketcher::SketchObject", "Sketch017")
sketch18.AttachmentSupport = (doc.getObject("XZ_Plane"), [""])
sketch18.MapMode = "FlatFace"
sketch18.AttachmentOffset = App.Placement(Vector(0, 0, -233), App.Rotation())
sketch18.addGeometry(Part.Circle(Vector(105, 3, 0), Vector(0, 0, 1), 2.5), False)
sketch18.addConstraint([
    Sketcher.Constraint("Diameter", 0, 5.0),
    Sketcher.Constraint("DistanceX", -1, 1, 0, 3, 105.0),
    Sketcher.Constraint("DistanceY", -1, 1, 0, 3, 3.0),
])
pad9 = body.newObject("PartDesign::Pad", "Pad008")
pad9.Profile = sketch18
pad9.Length = 1.5
pad9.Reversed = True
doc.recompute()

datumplane2 = body.newObject("PartDesign::Plane", "DatumPlane001")
datumplane2.AttachmentSupport = (doc.getObject("XY_Plane"), [""])
datumplane2.MapMode = "FlatFace"
datumplane2.AttachmentOffset = App.Placement(Vector(0, 0, 39), App.Rotation())
mirrored2 = body.newObject("PartDesign::Mirrored", "Mirrored001")
mirrored2.Originals = [pad8, pad9]
mirrored2.MirrorPlane = (datumplane2, [""])
body.Tip = mirrored2
body2 = doc.addObject("PartDesign::Body", "Body001")

# Sketch on XZ plane
sketch19 = body2.newObject("Sketcher::SketchObject", "Sketch018")
sketch19.AttachmentSupport = (doc.getObject("XZ_Plane001"), [""])
sketch19.MapMode = "FlatFace"
sketch19.AttachmentOffset = App.Placement(Vector(0, 0, -230.5), App.Rotation())
sketch19.addGeometry([
    Part.LineSegment(Vector(115, 0.5, 0), Vector(105, 0.5, 0)),  # 0
    Part.ArcOfCircle(Part.Circle(Vector(105, 3, 0), Vector(0, 0, 1), 2.5), math.radians(90), math.radians(270)),  # 1
    Part.LineSegment(Vector(105, 5.5, 0), Vector(115, 5.5, 0)),  # 2
    Part.ArcOfCircle(Part.Circle(Vector(115, 3, 0), Vector(0, 0, 1), 2.5), math.radians(-90), math.radians(90)),  # 3
    Part.Circle(Vector(105, 3, 0), Vector(0, 0, 1), 1.62),  # 4
], False)
sketch19.addConstraint([
    Sketcher.Constraint("Tangent", 0, 2, 1, 2),
    Sketcher.Constraint("Tangent", 1, 1, 2, 1),
    Sketcher.Constraint("Tangent", 2, 2, 3, 2),
    Sketcher.Constraint("Tangent", 3, 1, 0, 1),
    Sketcher.Constraint("Horizontal", 0),
    Sketcher.Constraint("Horizontal", 2),
    Sketcher.Constraint("Coincident", 4, 3, 1, 3),
    Sketcher.Constraint("Radius", 1, 2.5),
    Sketcher.Constraint("Diameter", 4, 3.24),
    Sketcher.Constraint("DistanceX", 0, 2, 0, 1, 10.0),
    Sketcher.Constraint("DistanceX", -1, 1, 1, 3, 105.0),
    Sketcher.Constraint("DistanceY", -1, 1, 1, 3, 3.0),
])
pad10 = body2.newObject("PartDesign::Pad", "Pad009")
pad10.Profile = sketch19
pad10.Length = 2
pad10.Reversed = True
body3 = doc.addObject("PartDesign::Body", "Body002")

# Sketch on XZ plane
sketch20 = body3.newObject("Sketcher::SketchObject", "Sketch019")
sketch20.AttachmentSupport = (doc.getObject("XZ_Plane002"), [""])
sketch20.MapMode = "FlatFace"
sketch20.AttachmentOffset = App.Placement(Vector(0, 0, -230.5), App.Rotation())
sketch20.addGeometry([
    Part.LineSegment(Vector(115, 72.5, 0), Vector(105, 72.5, 0)),  # 0
    Part.ArcOfCircle(Part.Circle(Vector(105, 75, 0), Vector(0, 0, 1), 2.5), math.radians(90), math.radians(270)),  # 1
    Part.LineSegment(Vector(105, 77.5, 0), Vector(115, 77.5, 0)),  # 2
    Part.ArcOfCircle(Part.Circle(Vector(115, 75, 0), Vector(0, 0, 1), 2.5), math.radians(-90), math.radians(90)),  # 3
    Part.Circle(Vector(105, 75, 0), Vector(0, 0, 1), 1.62),  # 4
], False)
sketch20.addConstraint([
    Sketcher.Constraint("Tangent", 0, 2, 1, 2),
    Sketcher.Constraint("Tangent", 1, 1, 2, 1),
    Sketcher.Constraint("Tangent", 2, 2, 3, 2),
    Sketcher.Constraint("Tangent", 3, 1, 0, 1),
    Sketcher.Constraint("Horizontal", 0),
    Sketcher.Constraint("Horizontal", 2),
    Sketcher.Constraint("Coincident", 4, 3, 1, 3),
    Sketcher.Constraint("Radius", 1, 2.5),
    Sketcher.Constraint("Diameter", 4, 3.24),
    Sketcher.Constraint("DistanceX", 0, 2, 0, 1, 10.0),
    Sketcher.Constraint("DistanceX", -1, 1, 1, 3, 105.0),
    Sketcher.Constraint("DistanceY", -1, 1, 1, 3, 75.0),
])
pad11 = body3.newObject("PartDesign::Pad", "Pad010")
pad11.Profile = sketch20
pad11.Length = 2
pad11.Reversed = True

doc.recompute()
